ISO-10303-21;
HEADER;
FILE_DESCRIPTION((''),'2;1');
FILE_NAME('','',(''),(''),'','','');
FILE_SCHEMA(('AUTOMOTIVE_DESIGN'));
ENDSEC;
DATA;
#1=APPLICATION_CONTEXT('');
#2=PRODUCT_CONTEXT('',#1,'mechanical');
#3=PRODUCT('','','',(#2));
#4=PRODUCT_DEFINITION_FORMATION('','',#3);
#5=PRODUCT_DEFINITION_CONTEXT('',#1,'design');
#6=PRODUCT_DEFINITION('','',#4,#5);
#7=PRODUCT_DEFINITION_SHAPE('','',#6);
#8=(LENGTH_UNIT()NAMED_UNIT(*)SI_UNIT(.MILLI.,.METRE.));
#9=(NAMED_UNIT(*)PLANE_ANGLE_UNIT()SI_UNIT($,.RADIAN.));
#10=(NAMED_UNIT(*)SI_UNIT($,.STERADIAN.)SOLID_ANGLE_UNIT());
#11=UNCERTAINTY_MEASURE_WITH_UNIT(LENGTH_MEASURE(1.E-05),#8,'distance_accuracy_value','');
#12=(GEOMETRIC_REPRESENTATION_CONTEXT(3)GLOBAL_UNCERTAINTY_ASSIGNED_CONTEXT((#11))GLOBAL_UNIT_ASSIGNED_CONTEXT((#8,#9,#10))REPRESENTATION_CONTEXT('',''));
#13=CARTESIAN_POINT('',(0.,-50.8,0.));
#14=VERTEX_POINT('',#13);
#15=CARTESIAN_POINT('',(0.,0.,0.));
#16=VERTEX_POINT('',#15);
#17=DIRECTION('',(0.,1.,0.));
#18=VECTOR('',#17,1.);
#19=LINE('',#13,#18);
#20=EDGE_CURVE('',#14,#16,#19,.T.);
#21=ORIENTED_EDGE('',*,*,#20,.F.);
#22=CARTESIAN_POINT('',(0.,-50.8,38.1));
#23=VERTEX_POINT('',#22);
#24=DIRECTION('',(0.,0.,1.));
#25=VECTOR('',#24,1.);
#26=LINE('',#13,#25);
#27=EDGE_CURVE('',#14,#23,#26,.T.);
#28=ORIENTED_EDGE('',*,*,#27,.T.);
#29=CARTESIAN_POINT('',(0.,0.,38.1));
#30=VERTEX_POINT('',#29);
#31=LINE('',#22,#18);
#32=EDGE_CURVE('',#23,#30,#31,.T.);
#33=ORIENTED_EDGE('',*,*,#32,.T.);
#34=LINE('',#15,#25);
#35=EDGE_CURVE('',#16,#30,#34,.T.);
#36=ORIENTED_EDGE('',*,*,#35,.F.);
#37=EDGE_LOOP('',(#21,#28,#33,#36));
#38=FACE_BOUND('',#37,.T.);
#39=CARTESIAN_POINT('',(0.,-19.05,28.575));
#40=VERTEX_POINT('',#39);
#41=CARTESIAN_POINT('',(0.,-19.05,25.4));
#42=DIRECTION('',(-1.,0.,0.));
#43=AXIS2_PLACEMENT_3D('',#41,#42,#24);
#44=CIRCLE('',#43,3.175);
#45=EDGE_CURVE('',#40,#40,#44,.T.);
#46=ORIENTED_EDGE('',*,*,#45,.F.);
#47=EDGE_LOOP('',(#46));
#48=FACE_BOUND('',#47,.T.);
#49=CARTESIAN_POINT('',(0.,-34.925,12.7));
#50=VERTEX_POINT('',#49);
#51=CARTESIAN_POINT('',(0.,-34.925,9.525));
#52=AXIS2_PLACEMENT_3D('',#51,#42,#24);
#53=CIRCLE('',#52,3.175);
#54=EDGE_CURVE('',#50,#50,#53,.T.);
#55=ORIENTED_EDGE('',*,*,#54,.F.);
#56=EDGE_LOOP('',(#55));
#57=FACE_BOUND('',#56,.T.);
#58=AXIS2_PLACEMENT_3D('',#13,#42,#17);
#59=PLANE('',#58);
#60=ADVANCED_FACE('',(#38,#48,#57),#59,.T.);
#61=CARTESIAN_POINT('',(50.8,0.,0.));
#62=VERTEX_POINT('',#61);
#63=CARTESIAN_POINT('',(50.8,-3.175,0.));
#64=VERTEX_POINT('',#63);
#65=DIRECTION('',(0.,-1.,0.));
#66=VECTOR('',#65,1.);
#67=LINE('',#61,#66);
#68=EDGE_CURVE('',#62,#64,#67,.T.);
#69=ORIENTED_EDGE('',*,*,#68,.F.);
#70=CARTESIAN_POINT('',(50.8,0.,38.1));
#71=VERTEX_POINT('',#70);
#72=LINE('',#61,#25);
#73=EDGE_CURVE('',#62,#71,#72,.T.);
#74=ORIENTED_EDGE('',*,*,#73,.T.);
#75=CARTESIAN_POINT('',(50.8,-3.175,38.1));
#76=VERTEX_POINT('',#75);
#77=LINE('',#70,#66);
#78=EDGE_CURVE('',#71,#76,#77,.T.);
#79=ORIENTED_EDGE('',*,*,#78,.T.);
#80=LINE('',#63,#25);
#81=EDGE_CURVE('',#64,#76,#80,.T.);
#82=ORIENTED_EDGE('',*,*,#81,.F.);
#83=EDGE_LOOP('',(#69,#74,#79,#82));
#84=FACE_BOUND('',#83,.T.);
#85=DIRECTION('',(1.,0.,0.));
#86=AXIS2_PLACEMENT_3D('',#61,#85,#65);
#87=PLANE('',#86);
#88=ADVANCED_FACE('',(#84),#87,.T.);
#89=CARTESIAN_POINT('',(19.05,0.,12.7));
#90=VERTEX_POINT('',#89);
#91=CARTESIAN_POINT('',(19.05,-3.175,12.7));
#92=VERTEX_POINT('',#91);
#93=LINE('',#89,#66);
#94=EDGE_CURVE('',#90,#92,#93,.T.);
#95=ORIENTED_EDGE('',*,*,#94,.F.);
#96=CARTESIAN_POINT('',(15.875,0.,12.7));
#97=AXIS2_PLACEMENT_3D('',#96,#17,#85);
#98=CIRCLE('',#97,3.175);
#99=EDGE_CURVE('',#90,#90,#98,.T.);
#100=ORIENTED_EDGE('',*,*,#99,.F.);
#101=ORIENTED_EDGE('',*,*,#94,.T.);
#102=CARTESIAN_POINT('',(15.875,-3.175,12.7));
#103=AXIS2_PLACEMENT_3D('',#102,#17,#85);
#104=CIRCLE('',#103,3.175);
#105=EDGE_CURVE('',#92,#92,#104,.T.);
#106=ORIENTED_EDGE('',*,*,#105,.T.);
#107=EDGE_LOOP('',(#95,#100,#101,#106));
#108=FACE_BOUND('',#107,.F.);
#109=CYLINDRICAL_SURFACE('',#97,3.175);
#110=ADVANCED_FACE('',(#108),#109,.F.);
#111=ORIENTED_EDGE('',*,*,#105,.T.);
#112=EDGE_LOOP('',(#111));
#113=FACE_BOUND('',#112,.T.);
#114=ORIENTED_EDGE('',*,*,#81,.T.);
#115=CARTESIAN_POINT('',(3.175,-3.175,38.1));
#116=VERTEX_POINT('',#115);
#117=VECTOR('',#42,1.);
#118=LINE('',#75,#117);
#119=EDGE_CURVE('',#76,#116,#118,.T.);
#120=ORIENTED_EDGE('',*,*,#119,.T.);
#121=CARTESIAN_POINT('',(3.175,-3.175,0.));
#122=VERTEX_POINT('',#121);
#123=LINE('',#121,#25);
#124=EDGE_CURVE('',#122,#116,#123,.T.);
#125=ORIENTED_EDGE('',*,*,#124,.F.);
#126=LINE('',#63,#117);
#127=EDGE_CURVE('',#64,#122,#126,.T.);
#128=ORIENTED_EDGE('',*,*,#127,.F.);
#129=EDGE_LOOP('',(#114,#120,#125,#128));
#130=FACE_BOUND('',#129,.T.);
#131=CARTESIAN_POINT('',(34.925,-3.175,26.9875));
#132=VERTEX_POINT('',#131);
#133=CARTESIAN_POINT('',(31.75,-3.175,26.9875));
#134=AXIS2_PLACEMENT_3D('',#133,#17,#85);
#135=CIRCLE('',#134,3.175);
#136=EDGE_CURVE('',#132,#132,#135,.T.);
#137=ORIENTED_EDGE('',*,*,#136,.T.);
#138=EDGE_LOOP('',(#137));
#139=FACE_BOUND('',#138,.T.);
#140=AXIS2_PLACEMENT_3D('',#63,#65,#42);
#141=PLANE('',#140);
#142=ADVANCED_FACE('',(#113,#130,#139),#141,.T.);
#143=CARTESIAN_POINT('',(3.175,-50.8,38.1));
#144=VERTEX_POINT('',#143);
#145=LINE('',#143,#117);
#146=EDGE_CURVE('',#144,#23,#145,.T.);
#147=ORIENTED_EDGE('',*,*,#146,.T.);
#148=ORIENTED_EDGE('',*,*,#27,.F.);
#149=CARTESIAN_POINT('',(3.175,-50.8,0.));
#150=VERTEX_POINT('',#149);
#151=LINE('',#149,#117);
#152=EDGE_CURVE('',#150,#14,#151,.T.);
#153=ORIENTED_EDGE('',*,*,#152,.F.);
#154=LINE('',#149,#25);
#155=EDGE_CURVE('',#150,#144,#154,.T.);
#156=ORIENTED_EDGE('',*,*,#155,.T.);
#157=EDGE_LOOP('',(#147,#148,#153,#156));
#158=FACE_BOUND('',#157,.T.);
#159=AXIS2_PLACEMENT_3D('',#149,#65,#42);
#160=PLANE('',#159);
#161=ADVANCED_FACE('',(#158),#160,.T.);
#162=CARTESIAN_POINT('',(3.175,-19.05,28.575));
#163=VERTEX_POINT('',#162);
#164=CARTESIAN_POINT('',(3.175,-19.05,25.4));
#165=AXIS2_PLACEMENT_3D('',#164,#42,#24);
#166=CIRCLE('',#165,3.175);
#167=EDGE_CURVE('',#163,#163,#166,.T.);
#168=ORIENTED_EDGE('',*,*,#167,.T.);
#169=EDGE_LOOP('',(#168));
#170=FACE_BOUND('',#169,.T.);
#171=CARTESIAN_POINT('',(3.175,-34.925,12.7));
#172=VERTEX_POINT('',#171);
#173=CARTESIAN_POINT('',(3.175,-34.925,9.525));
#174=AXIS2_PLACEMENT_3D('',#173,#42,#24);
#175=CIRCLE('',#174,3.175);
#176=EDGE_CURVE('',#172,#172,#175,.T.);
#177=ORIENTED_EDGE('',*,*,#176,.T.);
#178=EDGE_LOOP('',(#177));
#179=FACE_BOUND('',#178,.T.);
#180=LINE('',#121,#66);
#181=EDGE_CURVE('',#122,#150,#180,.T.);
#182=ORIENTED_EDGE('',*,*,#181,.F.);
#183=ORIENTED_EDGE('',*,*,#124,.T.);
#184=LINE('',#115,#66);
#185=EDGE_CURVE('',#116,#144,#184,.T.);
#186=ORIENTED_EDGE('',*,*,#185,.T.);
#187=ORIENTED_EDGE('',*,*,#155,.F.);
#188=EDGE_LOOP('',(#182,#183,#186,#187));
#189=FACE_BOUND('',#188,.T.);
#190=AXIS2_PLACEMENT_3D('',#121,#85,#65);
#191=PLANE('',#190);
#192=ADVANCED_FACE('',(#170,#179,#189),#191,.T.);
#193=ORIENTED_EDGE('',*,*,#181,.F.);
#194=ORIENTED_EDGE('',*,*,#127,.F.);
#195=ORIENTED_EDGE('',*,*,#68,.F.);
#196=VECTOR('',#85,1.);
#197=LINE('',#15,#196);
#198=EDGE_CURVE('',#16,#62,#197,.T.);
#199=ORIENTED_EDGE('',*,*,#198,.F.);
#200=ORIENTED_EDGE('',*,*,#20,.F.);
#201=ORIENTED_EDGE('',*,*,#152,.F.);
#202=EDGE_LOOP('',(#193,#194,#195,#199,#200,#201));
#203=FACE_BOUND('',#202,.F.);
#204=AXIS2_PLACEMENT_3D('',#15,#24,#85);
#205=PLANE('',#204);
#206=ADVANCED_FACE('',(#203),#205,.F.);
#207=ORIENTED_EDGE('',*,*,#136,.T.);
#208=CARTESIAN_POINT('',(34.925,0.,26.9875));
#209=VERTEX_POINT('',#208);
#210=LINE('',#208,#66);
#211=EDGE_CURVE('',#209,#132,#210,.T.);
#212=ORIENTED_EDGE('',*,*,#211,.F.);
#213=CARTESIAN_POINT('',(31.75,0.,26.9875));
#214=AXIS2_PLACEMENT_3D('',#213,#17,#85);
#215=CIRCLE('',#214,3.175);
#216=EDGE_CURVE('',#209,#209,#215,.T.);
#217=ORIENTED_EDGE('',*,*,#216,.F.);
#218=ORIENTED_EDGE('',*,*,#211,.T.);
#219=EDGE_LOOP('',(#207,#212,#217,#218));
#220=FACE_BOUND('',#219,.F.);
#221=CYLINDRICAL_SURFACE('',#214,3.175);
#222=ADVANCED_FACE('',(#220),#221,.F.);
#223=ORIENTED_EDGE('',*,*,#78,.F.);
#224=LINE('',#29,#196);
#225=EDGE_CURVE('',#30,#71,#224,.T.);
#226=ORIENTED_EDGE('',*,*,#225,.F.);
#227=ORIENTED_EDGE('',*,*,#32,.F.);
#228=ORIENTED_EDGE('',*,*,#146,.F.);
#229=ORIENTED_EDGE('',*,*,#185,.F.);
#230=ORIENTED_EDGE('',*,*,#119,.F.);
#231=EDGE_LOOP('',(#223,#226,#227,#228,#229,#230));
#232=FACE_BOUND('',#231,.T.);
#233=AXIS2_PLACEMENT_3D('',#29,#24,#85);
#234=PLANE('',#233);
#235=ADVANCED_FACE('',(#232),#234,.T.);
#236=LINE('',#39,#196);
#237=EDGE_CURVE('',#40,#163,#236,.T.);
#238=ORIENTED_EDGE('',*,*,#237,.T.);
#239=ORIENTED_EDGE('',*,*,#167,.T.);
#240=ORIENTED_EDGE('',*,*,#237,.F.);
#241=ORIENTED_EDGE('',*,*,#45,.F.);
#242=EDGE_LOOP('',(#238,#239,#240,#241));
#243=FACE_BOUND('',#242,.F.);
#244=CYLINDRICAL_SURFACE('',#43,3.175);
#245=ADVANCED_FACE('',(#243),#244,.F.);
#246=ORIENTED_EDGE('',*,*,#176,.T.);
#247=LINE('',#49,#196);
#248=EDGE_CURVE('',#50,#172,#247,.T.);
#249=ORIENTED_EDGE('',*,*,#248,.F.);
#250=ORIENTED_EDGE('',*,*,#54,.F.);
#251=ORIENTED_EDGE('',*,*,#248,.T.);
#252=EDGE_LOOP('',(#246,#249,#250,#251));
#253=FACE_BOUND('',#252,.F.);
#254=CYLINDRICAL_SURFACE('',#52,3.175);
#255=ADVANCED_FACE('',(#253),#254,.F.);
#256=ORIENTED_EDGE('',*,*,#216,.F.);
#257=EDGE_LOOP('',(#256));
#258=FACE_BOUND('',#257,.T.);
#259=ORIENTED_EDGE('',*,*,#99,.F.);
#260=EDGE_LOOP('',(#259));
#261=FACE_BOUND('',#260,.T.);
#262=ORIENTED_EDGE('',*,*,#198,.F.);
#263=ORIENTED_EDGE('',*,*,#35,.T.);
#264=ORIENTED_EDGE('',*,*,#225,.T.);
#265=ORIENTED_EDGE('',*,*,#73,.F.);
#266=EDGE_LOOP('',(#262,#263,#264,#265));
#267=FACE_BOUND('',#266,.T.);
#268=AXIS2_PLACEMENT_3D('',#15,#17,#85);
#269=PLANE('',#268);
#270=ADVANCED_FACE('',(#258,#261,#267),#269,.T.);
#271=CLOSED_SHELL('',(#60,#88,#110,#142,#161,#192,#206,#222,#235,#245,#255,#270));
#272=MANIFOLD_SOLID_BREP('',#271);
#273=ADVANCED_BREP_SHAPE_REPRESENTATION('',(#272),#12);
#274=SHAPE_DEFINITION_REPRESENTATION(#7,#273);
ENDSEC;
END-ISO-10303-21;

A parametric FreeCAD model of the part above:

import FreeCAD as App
import Part
import Sketcher
Q = App.Units.Quantity

doc = App.newDocument("Part")
body = doc.addObject("PartDesign::Body", "Body")

sketch1 = body.newObject("Sketcher::SketchObject", "Sketch")
sketch1.AttachmentSupport = (doc.getObject("XY_Plane"), [""])
sketch1.MapMode = "FlatFace"
sketch1.addGeometry([
    Part.LineSegment(App.Vector(50.8, 0, 0), App.Vector(0, 0, 0)),
    Part.LineSegment(App.Vector(0, 0, 0), App.Vector(0, -50.8, 0)),
    Part.LineSegment(App.Vector(0, -50.8, 0), App.Vector(3.175, -50.8, 0)),
    Part.LineSegment(App.Vector(3.175, -50.8, 0), App.Vector(3.175, -3.175, 0)),
    Part.LineSegment(App.Vector(3.175, -3.175, 0), App.Vector(50.8, -3.175, 0)),
    Part.LineSegment(App.Vector(50.8, -3.175, 0), App.Vector(50.8, 0, 0)),
], False)
sketch1.addConstraint([
    Sketcher.Constraint("Coincident", 0, 2, 1, 1),
    Sketcher.Constraint("Coincident", 1, 2, 2, 1),
    Sketcher.Constraint("Coincident", 2, 2, 3, 1),
    Sketcher.Constraint("Coincident", 3, 2, 4, 1),
    Sketcher.Constraint("Coincident", 4, 2, 5, 1),
    Sketcher.Constraint("Coincident", 5, 2, 0, 1),
    Sketcher.Constraint("Horizontal", 0),
    Sketcher.Constraint("Vertical", 1),
    Sketcher.Constraint("Horizontal", 2),
    Sketcher.Constraint("Vertical", 3),
    Sketcher.Constraint("Horizontal", 4),
    Sketcher.Constraint("Vertical", 5),
    Sketcher.Constraint("Coincident", 0, 2, -1, 1),
    Sketcher.Constraint("Equal", 0, 1),
    Sketcher.Constraint("Equal", 4, 3),
    Sketcher.Constraint("DistanceX", 0, 2, 0, 1, Q("2 in")),
    Sketcher.Constraint("DistanceX", 2, 1, 2, 2, Q("0.125 in")),
])
pad1 = body.newObject("PartDesign::Pad", "Pad")
pad1.Profile = sketch1
pad1.Length = Q("1.5 in")

sketch2 = body.newObject("Sketcher::SketchObject", "Sketch001")
sketch2.AttachmentSupport = (doc.getObject("YZ_Plane"), [""])
sketch2.MapMode = "FlatFace"
sketch2.addGeometry([
    Part.Circle(App.Vector(-19.05, 25.4, 0), App.Vector(0, 0, 1), 3.175),
    Part.Circle(App.Vector(-34.925, 9.525, 0), App.Vector(0, 0, 1), 3.175),
], False)
sketch2.addConstraint([
    Sketcher.Constraint("Equal", 0, 1),
    Sketcher.Constraint("Diameter", 0, Q("0.25 in")),
    Sketcher.Constraint("DistanceY", -1, 1, 0, 3, Q("1 in")),
    Sketcher.Constraint("DistanceX", 0, 3, -1, 1, Q("0.75 in")),
    Sketcher.Constraint("DistanceY", -1, 1, 1, 3, Q("0.375 in")),
    Sketcher.Constraint("DistanceX", 1, 3, 0, 3, Q("0.625 in")),
])
pocket1 = body.newObject("PartDesign::Pocket", "Pocket")
pocket1.Profile = sketch2
pocket1.Length = Q("0.125 in")
pocket1.Reversed = True

sketch3 = body.newObject("Sketcher::SketchObject", "Sketch002")
sketch3.AttachmentSupport = (doc.getObject("XZ_Plane"), [""])
sketch3.MapMode = "FlatFace"
sketch3.addGeometry([
    Part.Circle(App.Vector(15.875, 12.7, 0), App.Vector(0, 0, 1), 3.175),
    Part.Circle(App.Vector(31.75, 26.9875, 0), App.Vector(0, 0, 1), 3.175),
], False)
sketch3.addConstraint([
    Sketcher.Constraint("Equal", 0, 1),
    Sketcher.Constraint("Diameter", 0, Q("0.25 in")),
    Sketcher.Constraint("DistanceY", -1, 1, 0, 3, Q("0.5 in")),
    Sketcher.Constraint("DistanceX", -1, 1, 0, 3, Q("0.625 in")),
    Sketcher.Constraint("DistanceX", 0, 3, 1, 3, Q("0.625 in")),
    Sketcher.Constraint("DistanceY", -1, 1, 1, 3, Q("1.0625 in")),
])
pocket2 = body.newObject("PartDesign::Pocket", "Pocket001")
pocket2.Profile = sketch3
pocket2.Length = Q("0.125 in")
pocket2.Reversed = True

doc.recompute()
